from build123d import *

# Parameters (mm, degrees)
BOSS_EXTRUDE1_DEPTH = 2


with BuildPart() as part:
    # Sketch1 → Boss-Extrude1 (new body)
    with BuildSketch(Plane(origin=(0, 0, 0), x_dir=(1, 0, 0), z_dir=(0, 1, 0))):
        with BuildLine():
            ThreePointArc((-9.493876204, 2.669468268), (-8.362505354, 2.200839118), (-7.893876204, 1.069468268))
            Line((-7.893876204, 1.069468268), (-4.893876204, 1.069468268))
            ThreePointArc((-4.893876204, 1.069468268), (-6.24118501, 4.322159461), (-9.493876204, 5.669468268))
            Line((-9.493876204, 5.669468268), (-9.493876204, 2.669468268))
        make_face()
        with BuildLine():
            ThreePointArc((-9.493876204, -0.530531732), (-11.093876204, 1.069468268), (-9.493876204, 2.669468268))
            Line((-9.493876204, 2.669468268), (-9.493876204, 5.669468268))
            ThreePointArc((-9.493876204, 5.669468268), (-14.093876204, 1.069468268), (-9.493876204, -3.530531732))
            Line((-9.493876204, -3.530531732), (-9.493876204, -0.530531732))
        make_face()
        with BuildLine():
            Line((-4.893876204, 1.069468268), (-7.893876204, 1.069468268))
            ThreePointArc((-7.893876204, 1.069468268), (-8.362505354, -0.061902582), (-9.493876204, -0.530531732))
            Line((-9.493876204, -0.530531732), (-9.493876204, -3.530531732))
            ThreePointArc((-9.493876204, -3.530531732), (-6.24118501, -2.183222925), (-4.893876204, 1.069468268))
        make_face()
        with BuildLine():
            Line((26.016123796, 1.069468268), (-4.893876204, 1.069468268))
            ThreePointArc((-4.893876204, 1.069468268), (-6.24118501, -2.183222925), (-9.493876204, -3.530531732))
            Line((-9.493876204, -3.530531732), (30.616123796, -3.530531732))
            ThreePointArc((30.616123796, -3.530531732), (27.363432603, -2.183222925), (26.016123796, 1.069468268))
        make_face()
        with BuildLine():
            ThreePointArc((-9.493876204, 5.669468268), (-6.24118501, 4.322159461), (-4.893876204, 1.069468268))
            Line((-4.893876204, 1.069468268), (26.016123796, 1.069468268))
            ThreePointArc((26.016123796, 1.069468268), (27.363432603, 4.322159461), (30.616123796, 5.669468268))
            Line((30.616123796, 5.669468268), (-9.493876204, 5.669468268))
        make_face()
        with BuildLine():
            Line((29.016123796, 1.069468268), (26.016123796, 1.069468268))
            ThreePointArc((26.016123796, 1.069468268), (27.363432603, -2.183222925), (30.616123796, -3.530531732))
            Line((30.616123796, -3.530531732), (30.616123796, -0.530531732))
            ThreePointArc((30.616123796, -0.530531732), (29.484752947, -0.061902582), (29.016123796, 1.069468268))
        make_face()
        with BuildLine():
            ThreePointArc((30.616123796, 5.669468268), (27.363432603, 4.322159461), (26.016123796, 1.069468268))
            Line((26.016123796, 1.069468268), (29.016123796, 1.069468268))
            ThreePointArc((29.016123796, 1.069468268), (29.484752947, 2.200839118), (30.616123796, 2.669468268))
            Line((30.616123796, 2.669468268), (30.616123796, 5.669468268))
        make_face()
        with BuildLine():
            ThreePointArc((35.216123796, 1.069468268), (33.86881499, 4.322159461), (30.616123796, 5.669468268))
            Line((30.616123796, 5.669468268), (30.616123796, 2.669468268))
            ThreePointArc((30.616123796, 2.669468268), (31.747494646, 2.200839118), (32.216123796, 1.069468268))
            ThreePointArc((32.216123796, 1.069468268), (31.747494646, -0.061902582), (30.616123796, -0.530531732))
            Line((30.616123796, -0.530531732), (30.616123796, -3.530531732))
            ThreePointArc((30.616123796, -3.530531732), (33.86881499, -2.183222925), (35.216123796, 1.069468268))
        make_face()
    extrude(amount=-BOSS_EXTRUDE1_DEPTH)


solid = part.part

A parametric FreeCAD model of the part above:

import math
import FreeCAD as App
import Part
import Sketcher

V = App.Vector
Q = App.Units.Quantity

doc = App.newDocument("Part")
body = doc.addObject("PartDesign::Body", "Body")

# Sketch on XZ plane
sketch1 = doc.addObject("Sketcher::SketchObject", "Sketch")
body.addObject(sketch1)
sketch1.AttachmentSupport = (doc.XZ_Plane, [""])
sketch1.MapMode = "FlatFace"
sketch1.addGeometry([
    Part.ArcOfCircle(Part.Circle(V(-9.5, -1.1, 0), V(0, 0, 1), 4.6), math.radians(90), math.radians(270)),  # 0
    Part.LineSegment(V(-9.5, 3.5, 0), V(30.6, 3.5, 0)),  # 1
    Part.ArcOfCircle(Part.Circle(V(30.6, -1.1, 0), V(0, 0, 1), 4.6), math.radians(0), math.radians(90)),  # 2
    Part.ArcOfCircle(Part.Circle(V(30.6, -1.1, 0), V(0, 0, 1), 4.6), math.radians(-90), math.radians(0)),  # 3
    Part.LineSegment(V(30.6, -5.7, 0), V(-9.5, -5.7, 0)),  # 4
    Part.ArcOfCircle(Part.Circle(V(-9.5, -1.1, 0), V(0, 0, 1), 1.6), math.radians(-90), math.radians(0)),  # 5
    Part.ArcOfCircle(Part.Circle(V(-9.5, -1.1, 0), V(0, 0, 1), 1.6), math.radians(0), math.radians(90)),  # 6
    Part.ArcOfCircle(Part.Circle(V(-9.5, -1.1, 0), V(0, 0, 1), 1.6), math.radians(90), math.radians(270)),  # 7
    Part.ArcOfCircle(Part.Circle(V(30.6, -1.1, 0), V(0, 0, 1), 1.6), math.radians(90), math.radians(180)),  # 8
    Part.ArcOfCircle(Part.Circle(V(30.6, -1.1, 0), V(0, 0, 1), 1.6), math.radians(-180), math.radians(-90)),  # 9
    Part.ArcOfCircle(Part.Circle(V(30.6, -1.1, 0), V(0, 0, 1), 1.6), math.radians(-90), math.radians(0)),  # 10
    Part.ArcOfCircle(Part.Circle(V(30.6, -1.1, 0), V(0, 0, 1), 1.6), math.radians(0), math.radians(90)),  # 11
], False)
sketch1.addConstraint([
    Sketcher.Constraint("Tangent", 0, 1, 1, 1),
    Sketcher.Constraint("Tangent", 1, 2, 2, 2),
    Sketcher.Constraint("Tangent", 2, 1, 3, 2),
    Sketcher.Constraint("Tangent", 3, 1, 4, 1),
    Sketcher.Constraint("Tangent", 4, 2, 0, 2),
    Sketcher.Constraint("Tangent", 5, 2, 6, 1),
    Sketcher.Constraint("Tangent", 6, 2, 7, 1),
    Sketcher.Constraint("Tangent", 7, 2, 5, 1),
    Sketcher.Constraint("Tangent", 8, 2, 9, 1),
    Sketcher.Constraint("Tangent", 9, 2, 10, 1),
    Sketcher.Constraint("Tangent", 10, 2, 11, 1),
    Sketcher.Constraint("Tangent", 11, 2, 8, 1),
    Sketcher.Constraint("Horizontal", 1),
    Sketcher.Constraint("Horizontal", 4),
    Sketcher.Constraint("Coincident", 5, 3, 0, 3),
    Sketcher.Constraint("Coincident", 8, 3, 2, 3),
    Sketcher.Constraint("Equal", 0, 2),
    Sketcher.Constraint("Equal", 7, 8),
    Sketcher.Constraint("Equal", 8, 9),
    Sketcher.Constraint("Horizontal", 11, 3, 2, 1),
    Sketcher.Constraint("Horizontal", 2, 1, 5, 2),
    Sketcher.Constraint("Horizontal", 5, 2, 8, 2),
    Sketcher.Constraint("Horizontal", 8, 2, 10, 2),
    Sketcher.Constraint("Vertical", 4, 2, 6, 2),
    Sketcher.Constraint("Vertical", 6, 2, 7, 2),
    Sketcher.Constraint("Vertical", 3, 1, 9, 2),
    Sketcher.Constraint("Vertical", 9, 2, 11, 2),
    Sketcher.Constraint("Radius", 0, Q("4.6 mm")),
    Sketcher.Constraint("Radius", 5, Q("1.6 mm")),
    Sketcher.Constraint("DistanceX", 1, 1, 1, 2, Q("40.11 mm")),
    Sketcher.Constraint("DistanceY", 0, 3, -1, 1, Q("1.069468 mm")),
    Sketcher.Constraint("DistanceX", 0, 3, -1, 1, Q("9.493876 mm")),
])
pad1 = doc.addObject("PartDesign::Pad", "Pad")
body.addObject(pad1)
pad1.Profile = sketch1
pad1.Length = 2

doc.recompute()
